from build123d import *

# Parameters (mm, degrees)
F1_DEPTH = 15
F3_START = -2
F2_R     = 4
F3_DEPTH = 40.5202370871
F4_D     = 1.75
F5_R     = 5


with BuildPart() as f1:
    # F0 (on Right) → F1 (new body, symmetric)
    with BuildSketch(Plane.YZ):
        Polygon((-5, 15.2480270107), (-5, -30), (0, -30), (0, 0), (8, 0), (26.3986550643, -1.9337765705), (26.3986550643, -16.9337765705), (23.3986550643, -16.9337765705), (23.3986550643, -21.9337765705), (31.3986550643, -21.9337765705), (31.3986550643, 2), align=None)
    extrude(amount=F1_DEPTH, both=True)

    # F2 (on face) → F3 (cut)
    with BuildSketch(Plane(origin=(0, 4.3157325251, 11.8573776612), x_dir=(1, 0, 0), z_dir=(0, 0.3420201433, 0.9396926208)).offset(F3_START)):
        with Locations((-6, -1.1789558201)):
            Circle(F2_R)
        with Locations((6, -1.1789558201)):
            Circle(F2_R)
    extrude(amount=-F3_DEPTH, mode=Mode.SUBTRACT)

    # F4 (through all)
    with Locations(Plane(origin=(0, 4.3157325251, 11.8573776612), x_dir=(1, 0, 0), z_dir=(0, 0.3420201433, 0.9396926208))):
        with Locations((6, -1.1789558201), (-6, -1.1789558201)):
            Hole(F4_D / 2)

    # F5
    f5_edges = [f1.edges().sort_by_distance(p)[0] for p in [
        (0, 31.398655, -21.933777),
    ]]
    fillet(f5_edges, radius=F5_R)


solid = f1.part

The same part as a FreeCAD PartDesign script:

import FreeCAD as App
import Part
import Sketcher

V = App.Vector
Q = App.Units.Quantity


def edges_at(feature, points):
    """Names of the edges that pass closest to the given points."""
    edges = feature.Shape.Edges
    near = lambda p: min(range(len(edges)), key=lambda i: edges[i].distToShape(Part.Vertex(*p))[0])
    return sorted({f"Edge{near(p) + 1}" for p in points})


def add_polygon(sketch, points):
    """Adds a closed chain of lines whose ends are joined by coincident constraints."""
    first, n = sketch.GeometryCount, len(points)
    for a, b in zip(points, points[1:] + points[:1]):
        sketch.addGeometry(Part.LineSegment(App.Vector(*a, 0), App.Vector(*b, 0)), False)
    for i in range(n):
        sketch.addConstraint(Sketcher.Constraint("Coincident", first + i, 2, first + (i + 1) % n, 1))

doc = App.newDocument("Part")
body = doc.addObject("PartDesign::Body", "Body")

sketch1 = doc.addObject("Sketcher::SketchObject", "Sketch")
body.addObject(sketch1)
sketch1.AttachmentSupport = (doc.YZ_Plane, [""])
sketch1.MapMode = "FlatFace"
add_polygon(sketch1, [(-5, 15.248027), (-5, -30), (0, -30), (0, 0), (8, 0), (26.398655, -1.933777), (26.398655, -16.933777), (23.398655, -16.933777), (23.398655, -21.933777), (31.398655, -21.933777), (31.398655, 2)])
sketch1.addConstraint([
    Sketcher.Constraint("Vertical", 0),
    Sketcher.Constraint("Horizontal", 1),
    Sketcher.Constraint("Vertical", 2),
    Sketcher.Constraint("Horizontal", 3),
    Sketcher.Constraint("Vertical", 5),
    Sketcher.Constraint("Horizontal", 6),
    Sketcher.Constraint("Vertical", 7),
    Sketcher.Constraint("Horizontal", 8),
    Sketcher.Constraint("Vertical", 9),
    Sketcher.Constraint("Coincident", 2, 2, -1, 1),
    Sketcher.Constraint("Equal", 3, 8),
    Sketcher.Constraint("Equal", 1, 7),
    Sketcher.Constraint("DistanceX", 1, 1, 1, 2, 5.0),
    Sketcher.Constraint("DistanceX", 3, 1, 3, 2, 8.0),
    Sketcher.Constraint("DistanceX", 6, 2, 6, 1, 3.0),
    Sketcher.Constraint("DistanceY", 2, 1, 2, 2, 30.0),
    Sketcher.Constraint("DistanceY", 5, 2, 5, 1, 15.0),
    Sketcher.Constraint("Angle", 4, Q("-6 deg")),
    Sketcher.Constraint("Angle", 10, Q("160 deg")),
    Sketcher.Constraint("DistanceY", -1, 1, 9, 2, 2.0),
    Sketcher.Constraint("Distance", 4, 18.5),
])
pad1 = doc.addObject("PartDesign::Pad", "Pad")
body.addObject(pad1)
pad1.Profile = sketch1
pad1.Length = 30
pad1.Midplane = True

sketch2 = doc.addObject("Sketcher::SketchObject", "Sketch001")
body.addObject(sketch2)
sketch2.Placement = App.Placement(V(0, 3.631692, 9.977992), App.Rotation(V(1, 0, 0), V(0, 0.939692621, -0.342020143), V(0, 0.342020143, 0.939692621), "ZXY"))
sketch2.addGeometry([
    Part.Circle(V(-6, -1.178956, 0), V(0, 0, 1), 4),
    Part.Circle(V(6, -1.178956, 0), V(0, 0, 1), 4),
], False)
sketch2.addConstraint([
    Sketcher.Constraint("Equal", 0, 1),
    Sketcher.Constraint("Symmetric", 0, 3, 1, 3, -2),
    Sketcher.Constraint("Diameter", 0, 8.0),
    Sketcher.Constraint("DistanceX", 0, 3, -1, 1, 6.0),
    Sketcher.Constraint("DistanceY", 0, 3, -1, 1, 1.178956),
])
pocket1 = doc.addObject("PartDesign::Pocket", "Pocket")
body.addObject(pocket1)
pocket1.Profile = sketch2
pocket1.Length = 40.520237

sketch3 = doc.addObject("Sketcher::SketchObject", "Sketch002")
body.addObject(sketch3)
sketch3.Placement = App.Placement(V(0, 4.315733, 11.857378), App.Rotation(V(1, 0, 0), V(0, 0.939692621, -0.342020143), V(0, 0.342020143, 0.939692621), "ZXY"))
sketch3.addGeometry([
    Part.Circle(V(6, -1.178956, 0), V(0, 0, 1), 0.875),
    Part.Circle(V(-6, -1.178956, 0), V(0, 0, 1), 0.875),
], False)
sketch3.addConstraint([
    Sketcher.Constraint("Equal", 0, 1),
    Sketcher.Constraint("Symmetric", 0, 3, 1, 3, -2),
    Sketcher.Constraint("Diameter", 0, 1.75),
    Sketcher.Constraint("DistanceX", -1, 1, 0, 3, 6.0),
    Sketcher.Constraint("DistanceY", 0, 3, -1, 1, 1.178956),
])
doc.recompute()
hole = doc.addObject("PartDesign::Hole", "Hole")
body.addObject(hole)
hole.Profile = sketch3
hole.ThreadType = "None"
hole.Diameter = 1.75
hole.DepthType = "ThroughAll"
doc.recompute()

fillet = doc.addObject("PartDesign::Fillet", "Fillet")
body.addObject(fillet)
fillet.Base = (hole, edges_at(hole, [(0, 31.399, -21.934)]))
fillet.Radius = 5

doc.recompute()
